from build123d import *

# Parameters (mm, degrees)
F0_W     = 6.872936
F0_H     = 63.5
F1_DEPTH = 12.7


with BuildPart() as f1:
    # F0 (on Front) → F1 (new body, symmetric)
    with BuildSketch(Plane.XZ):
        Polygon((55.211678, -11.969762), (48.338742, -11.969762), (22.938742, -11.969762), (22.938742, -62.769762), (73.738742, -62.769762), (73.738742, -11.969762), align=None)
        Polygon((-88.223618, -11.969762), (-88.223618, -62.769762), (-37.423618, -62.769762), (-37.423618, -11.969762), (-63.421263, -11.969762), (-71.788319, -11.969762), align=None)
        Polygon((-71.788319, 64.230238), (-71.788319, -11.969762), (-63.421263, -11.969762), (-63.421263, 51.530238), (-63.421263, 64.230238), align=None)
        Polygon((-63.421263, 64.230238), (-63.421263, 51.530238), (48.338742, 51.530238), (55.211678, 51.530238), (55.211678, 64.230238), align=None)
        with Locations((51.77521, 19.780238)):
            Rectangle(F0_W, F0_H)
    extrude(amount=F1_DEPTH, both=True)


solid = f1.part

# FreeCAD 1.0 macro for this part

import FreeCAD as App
import Part
import Sketcher
from FreeCAD import Vector
Q = App.Units.Quantity


def add_polygon(sketch, points):
    """Adds a closed chain of lines whose ends are joined by coincident constraints."""
    first, n = sketch.GeometryCount, len(points)
    for a, b in zip(points, points[1:] + points[:1]):
        sketch.addGeometry(Part.LineSegment(App.Vector(*a, 0), App.Vector(*b, 0)), False)
    for i in range(n):
        sketch.addConstraint(Sketcher.Constraint("Coincident", first + i, 2, first + (i + 1) % n, 1))

doc = App.newDocument("Part")
body = doc.addObject("PartDesign::Body", "Body")

sketch1 = body.newObject("Sketcher::SketchObject", "Sketch")
sketch1.AttachmentSupport = (doc.getObject("XZ_Plane"), [""])
sketch1.MapMode = "FlatFace"
add_polygon(sketch1, [(23, -12), (23, -63), (74, -63), (74, -12), (55, -12), (55, 64), (-72, 64), (-72, -12), (-88, -12), (-88, -63), (-37, -63), (-37, -12), (-63, -12), (-63, 52), (48, 52), (48, -12)])
sketch1.addConstraint(Sketcher.Constraint("Vertical", 0))
sketch1.addConstraint(Sketcher.Constraint("Horizontal", 1))
sketch1.addConstraint(Sketcher.Constraint("Vertical", 2))
sketch1.addConstraint(Sketcher.Constraint("Horizontal", 3))
sketch1.addConstraint(Sketcher.Constraint("Vertical", 4))
sketch1.addConstraint(Sketcher.Constraint("Horizontal", 5))
sketch1.addConstraint(Sketcher.Constraint("Vertical", 6))
sketch1.addConstraint(Sketcher.Constraint("Horizontal", 7))
sketch1.addConstraint(Sketcher.Constraint("Vertical", 8))
sketch1.addConstraint(Sketcher.Constraint("Horizontal", 9))
sketch1.addConstraint(Sketcher.Constraint("Vertical", 10))
sketch1.addConstraint(Sketcher.Constraint("Horizontal", 11))
sketch1.addConstraint(Sketcher.Constraint("Vertical", 12))
sketch1.addConstraint(Sketcher.Constraint("Horizontal", 13))
sketch1.addConstraint(Sketcher.Constraint("Vertical", 14))
sketch1.addConstraint(Sketcher.Constraint("Horizontal", 15))
sketch1.addConstraint(Sketcher.Constraint("Horizontal", 3, 2, 6, 2))
sketch1.addConstraint(Sketcher.Constraint("Horizontal", 1, 2, 8, 2))
sketch1.addConstraint(Sketcher.Constraint("Horizontal", 7, 2, 10, 2))
sketch1.addConstraint(Sketcher.Constraint("Horizontal", 11, 2, 14, 2))
sketch1.addConstraint(Sketcher.Constraint("Equal", 1, 9))
sketch1.addConstraint(Sketcher.Constraint("Equal", 9, 0))
sketch1.addConstraint(Sketcher.Constraint("DistanceX", 1, 1, 1, 2, Q("2 in")))
sketch1.addConstraint(Sketcher.Constraint("DistanceX", 5, 2, 5, 1, Q("4.9999999 in")))
sketch1.addConstraint(Sketcher.Constraint("DistanceX", 15, 2, 15, 1, Q("1 in")))
sketch1.addConstraint(Sketcher.Constraint("DistanceY", 4, 1, 4, 2, Q("3 in")))
sketch1.addConstraint(Sketcher.Constraint("DistanceX", 13, 1, 13, 2, Q("4.4000002 in")))
sketch1.addConstraint(Sketcher.Constraint("DistanceY", 12, 1, 12, 2, Q("2.5 in")))
sketch1.addConstraint(Sketcher.Constraint("DistanceX", 7, 2, 7, 1, 16.435299))
sketch1.addConstraint(Sketcher.Constraint("DistanceX", -1, 1, 0, 2, Q("0.9031001 in")))
sketch1.addConstraint(Sketcher.Constraint("DistanceX", 3, 2, 3, 1, 18.527064))
sketch1.addConstraint(Sketcher.Constraint("DistanceY", 2, 2, -1, 1, 11.969762))
pad1 = body.newObject("PartDesign::Pad", "Pad")
pad1.Profile = sketch1
pad1.Length = Q("1 in")
pad1.Midplane = True

doc.recompute()
